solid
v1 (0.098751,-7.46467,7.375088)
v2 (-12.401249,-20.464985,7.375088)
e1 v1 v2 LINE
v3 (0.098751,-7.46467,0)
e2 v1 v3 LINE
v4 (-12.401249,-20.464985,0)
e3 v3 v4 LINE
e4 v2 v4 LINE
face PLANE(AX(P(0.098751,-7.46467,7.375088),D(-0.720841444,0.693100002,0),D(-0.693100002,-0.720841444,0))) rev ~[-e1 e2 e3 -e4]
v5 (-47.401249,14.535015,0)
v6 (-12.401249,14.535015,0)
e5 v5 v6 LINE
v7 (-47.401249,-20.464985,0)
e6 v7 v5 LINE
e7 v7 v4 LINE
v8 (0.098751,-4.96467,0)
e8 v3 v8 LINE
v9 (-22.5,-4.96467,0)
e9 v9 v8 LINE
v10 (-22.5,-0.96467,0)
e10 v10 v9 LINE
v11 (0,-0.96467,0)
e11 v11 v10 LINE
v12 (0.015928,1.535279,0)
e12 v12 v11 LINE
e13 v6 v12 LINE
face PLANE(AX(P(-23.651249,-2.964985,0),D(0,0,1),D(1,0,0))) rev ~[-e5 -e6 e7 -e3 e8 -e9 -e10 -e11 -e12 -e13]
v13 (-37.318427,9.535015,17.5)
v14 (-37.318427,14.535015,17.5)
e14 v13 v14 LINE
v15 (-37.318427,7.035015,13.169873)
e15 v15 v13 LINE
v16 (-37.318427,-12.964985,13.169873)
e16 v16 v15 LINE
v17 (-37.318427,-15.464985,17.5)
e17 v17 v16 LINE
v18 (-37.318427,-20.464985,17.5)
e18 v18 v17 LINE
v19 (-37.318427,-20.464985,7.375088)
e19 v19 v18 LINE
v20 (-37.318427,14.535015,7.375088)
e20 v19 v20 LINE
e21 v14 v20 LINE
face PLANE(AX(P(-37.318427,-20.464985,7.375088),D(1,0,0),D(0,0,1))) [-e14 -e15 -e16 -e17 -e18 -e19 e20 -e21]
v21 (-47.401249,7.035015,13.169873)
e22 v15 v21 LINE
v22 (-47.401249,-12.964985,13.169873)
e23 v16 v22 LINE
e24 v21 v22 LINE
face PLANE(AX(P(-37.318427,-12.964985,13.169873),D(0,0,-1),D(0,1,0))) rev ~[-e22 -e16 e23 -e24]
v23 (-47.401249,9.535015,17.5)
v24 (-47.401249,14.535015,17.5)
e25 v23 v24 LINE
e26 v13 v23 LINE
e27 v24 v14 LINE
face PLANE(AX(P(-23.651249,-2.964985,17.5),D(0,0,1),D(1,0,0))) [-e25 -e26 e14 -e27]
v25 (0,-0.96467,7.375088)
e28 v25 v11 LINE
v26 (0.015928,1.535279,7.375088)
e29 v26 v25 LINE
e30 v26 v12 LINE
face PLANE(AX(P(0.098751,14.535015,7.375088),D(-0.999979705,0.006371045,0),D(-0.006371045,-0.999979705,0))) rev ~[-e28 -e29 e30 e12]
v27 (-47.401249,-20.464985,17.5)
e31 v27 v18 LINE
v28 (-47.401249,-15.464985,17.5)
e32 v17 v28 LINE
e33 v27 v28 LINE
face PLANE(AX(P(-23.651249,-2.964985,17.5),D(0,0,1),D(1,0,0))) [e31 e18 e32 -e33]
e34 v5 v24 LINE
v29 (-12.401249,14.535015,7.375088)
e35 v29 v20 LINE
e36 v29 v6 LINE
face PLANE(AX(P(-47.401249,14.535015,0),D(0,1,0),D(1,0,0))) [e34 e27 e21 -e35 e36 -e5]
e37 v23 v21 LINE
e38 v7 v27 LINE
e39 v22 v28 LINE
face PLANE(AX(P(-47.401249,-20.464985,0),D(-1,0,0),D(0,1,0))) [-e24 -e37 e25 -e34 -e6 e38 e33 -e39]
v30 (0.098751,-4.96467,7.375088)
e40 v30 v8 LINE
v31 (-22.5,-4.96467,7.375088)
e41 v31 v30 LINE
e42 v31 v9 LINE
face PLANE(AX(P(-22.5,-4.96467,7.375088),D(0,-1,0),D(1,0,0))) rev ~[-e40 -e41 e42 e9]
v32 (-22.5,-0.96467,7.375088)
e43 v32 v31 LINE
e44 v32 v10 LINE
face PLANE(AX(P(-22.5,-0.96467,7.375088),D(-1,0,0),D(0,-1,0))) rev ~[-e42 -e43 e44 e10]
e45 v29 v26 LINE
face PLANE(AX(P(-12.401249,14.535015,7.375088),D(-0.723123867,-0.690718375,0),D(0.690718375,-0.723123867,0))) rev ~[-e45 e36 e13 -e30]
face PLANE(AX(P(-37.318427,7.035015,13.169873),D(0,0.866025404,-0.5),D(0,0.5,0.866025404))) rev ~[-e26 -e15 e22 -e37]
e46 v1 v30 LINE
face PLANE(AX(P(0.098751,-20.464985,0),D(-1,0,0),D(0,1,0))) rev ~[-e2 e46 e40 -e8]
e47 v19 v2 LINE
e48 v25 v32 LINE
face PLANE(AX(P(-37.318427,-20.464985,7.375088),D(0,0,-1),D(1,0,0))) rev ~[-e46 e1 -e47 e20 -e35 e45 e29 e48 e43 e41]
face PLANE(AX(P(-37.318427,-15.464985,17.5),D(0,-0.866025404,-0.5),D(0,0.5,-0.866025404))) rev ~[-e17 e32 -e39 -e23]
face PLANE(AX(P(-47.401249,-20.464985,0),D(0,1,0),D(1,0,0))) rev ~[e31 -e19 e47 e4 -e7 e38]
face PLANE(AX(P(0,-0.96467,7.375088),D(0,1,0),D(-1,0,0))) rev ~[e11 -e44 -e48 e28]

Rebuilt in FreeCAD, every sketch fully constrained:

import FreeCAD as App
import Part
import Sketcher
Q = App.Units.Quantity

doc = App.newDocument("Part")
body = doc.addObject("PartDesign::Body", "Body")

# Sketch on XY plane
sketch1 = doc.addObject("Sketcher::SketchObject", "Sketch")
body.addObject(sketch1)
sketch1.AttachmentSupport = (doc.XY_Plane, [""])
sketch1.MapMode = "FlatFace"
sketch1.addGeometry(Part.LineSegment(App.Vector(-47.401249, 14.535015, 0), App.Vector(-47.401249, -20.464985, 0)), False)
sketch1.addGeometry(Part.LineSegment(App.Vector(-47.401249, -20.464985, 0), App.Vector(0.098751, -20.464985, 0)), False)
sketch1.addGeometry(Part.LineSegment(App.Vector(0.098751, -20.464985, 0), App.Vector(0.098751, 14.535015, 0)), False)
sketch1.addGeometry(Part.LineSegment(App.Vector(0.098751, 14.535015, 0), App.Vector(-47.401249, 14.535015, 0)), False)
sketch1.addConstraint(Sketcher.Constraint("Coincident", 0, 2, 1, 1))
sketch1.addConstraint(Sketcher.Constraint("Coincident", 1, 2, 2, 1))
sketch1.addConstraint(Sketcher.Constraint("Coincident", 2, 2, 3, 1))
sketch1.addConstraint(Sketcher.Constraint("Coincident", 3, 2, 0, 1))
sketch1.addConstraint(Sketcher.Constraint("Vertical", 0))
sketch1.addConstraint(Sketcher.Constraint("Horizontal", 1))
sketch1.addConstraint(Sketcher.Constraint("Vertical", 2))
sketch1.addConstraint(Sketcher.Constraint("Horizontal", 3))
sketch1.addConstraint(Sketcher.Constraint("DistanceY", 0, 2, 0, 1, 35.0))
sketch1.addConstraint(Sketcher.Constraint("DistanceX", 1, 1, 1, 2, 47.5))
sketch1.addConstraint(Sketcher.Constraint("DistanceX", 0, 2, -1, 1, 47.401249))
sketch1.addConstraint(Sketcher.Constraint("DistanceY", 0, 2, -1, 1, 20.464985))
pad1 = doc.addObject("PartDesign::Pad", "Pad")
body.addObject(pad1)
pad1.Profile = sketch1
pad1.Length = 17.5

# Sketch on XZ plane
sketch2 = doc.addObject("Sketcher::SketchObject", "Sketch001")
body.addObject(sketch2)
sketch2.AttachmentSupport = (doc.XZ_Plane, [""])
sketch2.MapMode = "FlatFace"
sketch2.AttachmentOffset = App.Placement(App.Vector(0, 0, 20.464985), App.Rotation())
sketch2.addGeometry(Part.LineSegment(App.Vector(-37.318427, 17.5, 0), App.Vector(-37.318427, 7.375088, 0)), False)
sketch2.addGeometry(Part.LineSegment(App.Vector(-37.318427, 7.375088, 0), App.Vector(0.098751, 7.375088, 0)), False)
sketch2.addGeometry(Part.LineSegment(App.Vector(0.098751, 7.375088, 0), App.Vector(0.098751, 17.5, 0)), False)
sketch2.addGeometry(Part.LineSegment(App.Vector(0.098751, 17.5, 0), App.Vector(-37.318427, 17.5, 0)), False)
sketch2.addConstraint(Sketcher.Constraint("Coincident", 0, 2, 1, 1))
sketch2.addConstraint(Sketcher.Constraint("Coincident", 1, 2, 2, 1))
sketch2.addConstraint(Sketcher.Constraint("Coincident", 2, 2, 3, 1))
sketch2.addConstraint(Sketcher.Constraint("Coincident", 3, 2, 0, 1))
sketch2.addConstraint(Sketcher.Constraint("Vertical", 0))
sketch2.addConstraint(Sketcher.Constraint("Horizontal", 1))
sketch2.addConstraint(Sketcher.Constraint("Vertical", 2))
sketch2.addConstraint(Sketcher.Constraint("Horizontal", 3))
sketch2.addConstraint(Sketcher.Constraint("DistanceY", -1, 1, 2, 2, 17.5))
sketch2.addConstraint(Sketcher.Constraint("DistanceX", 1, 1, 1, 2, 37.417178))
sketch2.addConstraint(Sketcher.Constraint("DistanceY", 0, 2, 0, 1, 10.124912))
sketch2.addConstraint(Sketcher.Constraint("DistanceX", -1, 1, 1, 2, 0.098751))
pocket1 = doc.addObject("PartDesign::Pocket", "Pocket")
body.addObject(pocket1)
pocket1.Profile = sketch2
pocket1.Type = "ThroughAll"

# Sketch on YZ plane
sketch3 = doc.addObject("Sketcher::SketchObject", "Sketch002")
body.addObject(sketch3)
sketch3.AttachmentSupport = (doc.YZ_Plane, [""])
sketch3.MapMode = "FlatFace"
sketch3.AttachmentOffset = App.Placement(App.Vector(0, 0, -37.318427), App.Rotation())
sketch3.addGeometry(Part.LineSegment(App.Vector(9.535015, 17.5, 0), App.Vector(-15.464985, 17.5, 0)), False)
sketch3.addGeometry(Part.LineSegment(App.Vector(-15.464985, 17.5, 0), App.Vector(-12.964985, 13.169873, 0)), False)
sketch3.addGeometry(Part.LineSegment(App.Vector(-12.964985, 13.169873, 0), App.Vector(7.035015, 13.169873, 0)), False)
sketch3.addGeometry(Part.LineSegment(App.Vector(7.035015, 13.169873, 0), App.Vector(9.535015, 17.5, 0)), False)
sketch3.addConstraint(Sketcher.Constraint("Coincident", 0, 2, 1, 1))
sketch3.addConstraint(Sketcher.Constraint("Coincident", 1, 2, 2, 1))
sketch3.addConstraint(Sketcher.Constraint("Coincident", 2, 2, 3, 1))
sketch3.addConstraint(Sketcher.Constraint("Coincident", 3, 2, 0, 1))
sketch3.addConstraint(Sketcher.Constraint("Horizontal", 0))
sketch3.addConstraint(Sketcher.Constraint("Horizontal", 2))
sketch3.addConstraint(Sketcher.Constraint("Equal", 1, 3))
sketch3.addConstraint(Sketcher.Constraint("DistanceX", 0, 2, 0, 1, 25.0))
sketch3.addConstraint(Sketcher.Constraint("DistanceX", 2, 1, 2, 2, 20.0))
sketch3.addConstraint(Sketcher.Constraint("Angle", 1, Q("-60 deg")))
sketch3.addConstraint(Sketcher.Constraint("DistanceY", -1, 1, 0, 2, 17.5))
sketch3.addConstraint(Sketcher.Constraint("DistanceX", 0, 2, -1, 1, 15.464985))
pocket2 = doc.addObject("PartDesign::Pocket", "Pocket001")
body.addObject(pocket2)
pocket2.Profile = sketch3
pocket2.Type = "ThroughAll"

# Sketch on XY plane
sketch4 = doc.addObject("Sketcher::SketchObject", "Sketch003")
body.addObject(sketch4)
sketch4.AttachmentSupport = (doc.XY_Plane, [""])
sketch4.MapMode = "FlatFace"
sketch4.AttachmentOffset = App.Placement(App.Vector(0, 0, 7.375088), App.Rotation())
sketch4.addGeometry(Part.LineSegment(App.Vector(-22.5, -4.96467, 0), App.Vector(0.098751, -4.96467, 0)), False)
sketch4.addGeometry(Part.LineSegment(App.Vector(0.098751, -4.96467, 0), App.Vector(0.098751, 14.535015, 0)), False)
sketch4.addGeometry(Part.LineSegment(App.Vector(0.098751, 14.535015, 0), App.Vector(0, -0.96467, 0)), False)
sketch4.addGeometry(Part.LineSegment(App.Vector(0, -0.96467, 0), App.Vector(-22.5, -0.96467, 0)), False)
sketch4.addGeometry(Part.LineSegment(App.Vector(-22.5, -0.96467, 0), App.Vector(-22.5, -4.96467, 0)), False)
sketch4.addConstraint(Sketcher.Constraint("Coincident", 0, 2, 1, 1))
sketch4.addConstraint(Sketcher.Constraint("Coincident", 1, 2, 2, 1))
sketch4.addConstraint(Sketcher.Constraint("Coincident", 2, 2, 3, 1))
sketch4.addConstraint(Sketcher.Constraint("Coincident", 3, 2, 4, 1))
sketch4.addConstraint(Sketcher.Constraint("Coincident", 4, 2, 0, 1))
sketch4.addConstraint(Sketcher.Constraint("Horizontal", 0))
sketch4.addConstraint(Sketcher.Constraint("Vertical", 1))
sketch4.addConstraint(Sketcher.Constraint("Horizontal", 3))
sketch4.addConstraint(Sketcher.Constraint("Vertical", 4))
sketch4.addConstraint(Sketcher.Constraint("PointOnObject", 2, 2, -2))
sketch4.addConstraint(Sketcher.Constraint("DistanceY", 4, 2, 4, 1, 4.0))
sketch4.addConstraint(Sketcher.Constraint("DistanceX", 3, 2, 3, 1, 22.5))
sketch4.addConstraint(Sketcher.Constraint("Distance", 2, 15.5))
sketch4.addConstraint(Sketcher.Constraint("DistanceX", 0, 1, 0, 2, 22.598751))
sketch4.addConstraint(Sketcher.Constraint("DistanceY", 0, 2, -1, 1, 4.96467))
pocket3 = doc.addObject("PartDesign::Pocket", "Pocket002")
body.addObject(pocket3)
pocket3.Profile = sketch4
pocket3.Type = "ThroughAll"

# Sketch on XY plane
sketch5 = doc.addObject("Sketcher::SketchObject", "Sketch004")
body.addObject(sketch5)
sketch5.AttachmentSupport = (doc.XY_Plane, [""])
sketch5.MapMode = "FlatFace"
sketch5.AttachmentOffset = App.Placement(App.Vector(0, 0, 7.375088), App.Rotation())
sketch5.addGeometry(Part.LineSegment(App.Vector(0.098751, -7.46467, 0), App.Vector(-12.401249, -20.464985, 0)), False)
sketch5.addGeometry(Part.LineSegment(App.Vector(-12.401249, -20.464985, 0), App.Vector(0.098751, -20.464985, 0)), False)
sketch5.addGeometry(Part.LineSegment(App.Vector(0.098751, -20.464985, 0), App.Vector(0.098751, -7.46467, 0)), False)
sketch5.addGeometry(Part.LineSegment(App.Vector(-12.401249, 14.535015, 0), App.Vector(0.015928, 1.535279, 0)), False)
sketch5.addGeometry(Part.LineSegment(App.Vector(0.015928, 1.535279, 0), App.Vector(0.098751, 14.535015, 0)), False)
sketch5.addGeometry(Part.LineSegment(App.Vector(0.098751, 14.535015, 0), App.Vector(-12.401249, 14.535015, 0)), False)
sketch5.addConstraint(Sketcher.Constraint("Coincident", 0, 2, 1, 1))
sketch5.addConstraint(Sketcher.Constraint("Coincident", 1, 2, 2, 1))
sketch5.addConstraint(Sketcher.Constraint("Coincident", 2, 2, 0, 1))
sketch5.addConstraint(Sketcher.Constraint("Coincident", 3, 2, 4, 1))
sketch5.addConstraint(Sketcher.Constraint("Coincident", 4, 2, 5, 1))
sketch5.addConstraint(Sketcher.Constraint("Coincident", 5, 2, 3, 1))
sketch5.addConstraint(Sketcher.Constraint("Horizontal", 1))
sketch5.addConstraint(Sketcher.Constraint("Vertical", 2))
sketch5.addConstraint(Sketcher.Constraint("Horizontal", 5))
sketch5.addConstraint(Sketcher.Constraint("Vertical", 2, 2, 4, 2))
sketch5.addConstraint(Sketcher.Constraint("Vertical", 0, 2, 5, 2))
sketch5.addConstraint(Sketcher.Constraint("Distance", 4, 13.0))
sketch5.addConstraint(Sketcher.Constraint("DistanceX", 1, 1, 1, 2, 12.5))
sketch5.addConstraint(Sketcher.Constraint("DistanceY", 1, 2, 4, 2, 35.0))
sketch5.addConstraint(Sketcher.Constraint("Distance", 3, 17.977191))
sketch5.addConstraint(Sketcher.Constraint("DistanceY", 2, 1, 2, 2, 13.000315))
sketch5.addConstraint(Sketcher.Constraint("DistanceX", 0, 2, -1, 1, 12.401249))
sketch5.addConstraint(Sketcher.Constraint("DistanceY", 2, 2, -1, 1, 7.46467))
pocket4 = doc.addObject("PartDesign::Pocket", "Pocket003")
body.addObject(pocket4)
pocket4.Profile = sketch5
pocket4.Type = "ThroughAll"

doc.recompute()
